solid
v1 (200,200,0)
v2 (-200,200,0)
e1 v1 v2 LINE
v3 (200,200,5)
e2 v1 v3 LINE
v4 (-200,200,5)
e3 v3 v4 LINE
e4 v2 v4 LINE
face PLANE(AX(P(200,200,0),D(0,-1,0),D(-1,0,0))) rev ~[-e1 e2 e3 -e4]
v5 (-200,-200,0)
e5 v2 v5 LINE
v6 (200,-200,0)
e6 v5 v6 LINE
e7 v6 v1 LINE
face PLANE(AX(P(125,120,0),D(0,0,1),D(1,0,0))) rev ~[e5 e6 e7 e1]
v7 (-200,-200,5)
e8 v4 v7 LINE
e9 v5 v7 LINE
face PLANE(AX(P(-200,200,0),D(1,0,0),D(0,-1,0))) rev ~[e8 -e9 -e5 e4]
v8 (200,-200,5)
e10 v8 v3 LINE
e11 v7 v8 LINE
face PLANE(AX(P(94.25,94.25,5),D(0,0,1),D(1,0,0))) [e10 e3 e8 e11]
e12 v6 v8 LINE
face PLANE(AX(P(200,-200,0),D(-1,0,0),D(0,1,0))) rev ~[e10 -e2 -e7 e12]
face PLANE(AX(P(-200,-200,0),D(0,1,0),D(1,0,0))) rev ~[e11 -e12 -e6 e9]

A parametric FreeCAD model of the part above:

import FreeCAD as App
import Part
import Sketcher
from FreeCAD import Vector
Q = App.Units.Quantity


def add_polygon(sketch, points):
    """Adds a closed chain of lines whose ends are joined by coincident constraints."""
    first, n = sketch.GeometryCount, len(points)
    for a, b in zip(points, points[1:] + points[:1]):
        sketch.addGeometry(Part.LineSegment(App.Vector(*a, 0), App.Vector(*b, 0)), False)
    for i in range(n):
        sketch.addConstraint(Sketcher.Constraint("Coincident", first + i, 2, first + (i + 1) % n, 1))

doc = App.newDocument("Part")
params = doc.addObject("Spreadsheet::Sheet", "Params")
for row, (alias, value) in enumerate([
    ("sketch1_width", "400 mm"),
    ("sketch1_width2", "130 mm"),
    ("sketch1_height", "120 mm"),
    ("pad1_length", "5 mm"),
    ("sketch2_width", "130 mm"),
    ("sketch2_height", "120 mm"),
    ("pad2_length", "5 mm"),
], start=1):
    params.set(f"A{row}", alias)
    params.set(f"B{row}", "=" + value)
    params.setAlias(f"B{row}", alias)

body = doc.addObject("PartDesign::Body", "Body")

sketch1 = doc.addObject("Sketcher::SketchObject", "Sketch")
body.addObject(sketch1)
sketch1.AttachmentSupport = (doc.XY_Plane, [""])
sketch1.MapMode = "FlatFace"
add_polygon(sketch1, [(200, 200), (-200, 200), (-200, -200), (200, -200)])
add_polygon(sketch1, [(60, 60), (60, 180), (190, 180), (190, 60)])
sketch1.addConstraint(Sketcher.Constraint("Horizontal", 0))
sketch1.addConstraint(Sketcher.Constraint("Vertical", 1))
sketch1.addConstraint(Sketcher.Constraint("Horizontal", 2))
sketch1.addConstraint(Sketcher.Constraint("Vertical", 3))
sketch1.addConstraint(Sketcher.Constraint("Vertical", 4))
sketch1.addConstraint(Sketcher.Constraint("Horizontal", 5))
sketch1.addConstraint(Sketcher.Constraint("Vertical", 6))
sketch1.addConstraint(Sketcher.Constraint("Horizontal", 7))
sketch1.addConstraint(Sketcher.Constraint("Symmetric", 0, 2, 2, 2, -1, 1))
sketch1.addConstraint(Sketcher.Constraint("Equal", 2, 1))
sketch1.addConstraint(Sketcher.Constraint("DistanceX", 0, 2, 0, 1, Q("400 mm")))
sketch1.addConstraint(Sketcher.Constraint("DistanceX", 5, 1, 5, 2, Q("130 mm")))
sketch1.addConstraint(Sketcher.Constraint("DistanceY", 4, 1, 4, 2, Q("120 mm")))
sketch1.addConstraint(Sketcher.Constraint("DistanceX", -1, 1, 4, 2, Q("60 mm")))
sketch1.addConstraint(Sketcher.Constraint("DistanceY", -1, 1, 4, 2, Q("180 mm")))
sketch1.setExpression("Constraints[18]", "Params.sketch1_width")
sketch1.setExpression("Constraints[19]", "Params.sketch1_width2")
sketch1.setExpression("Constraints[20]", "Params.sketch1_height")
pad1 = doc.addObject("PartDesign::Pad", "Pad")
body.addObject(pad1)
pad1.Profile = sketch1
pad1.setExpression("Length", "Params.pad1_length")

sketch2 = doc.addObject("Sketcher::SketchObject", "Sketch001")
body.addObject(sketch2)
sketch2.AttachmentSupport = (doc.XY_Plane, [""])
sketch2.MapMode = "FlatFace"
add_polygon(sketch2, [(60, 180), (60, 60), (190, 60), (190, 180)])
sketch2.addConstraint(Sketcher.Constraint("Vertical", 0))
sketch2.addConstraint(Sketcher.Constraint("Horizontal", 1))
sketch2.addConstraint(Sketcher.Constraint("Vertical", 2))
sketch2.addConstraint(Sketcher.Constraint("Horizontal", 3))
sketch2.addConstraint(Sketcher.Constraint("DistanceX", 1, 1, 1, 2, Q("130 mm")))
sketch2.addConstraint(Sketcher.Constraint("DistanceY", 0, 2, 0, 1, Q("120 mm")))
sketch2.addConstraint(Sketcher.Constraint("DistanceX", -1, 1, 0, 2, Q("60 mm")))
sketch2.addConstraint(Sketcher.Constraint("DistanceY", -1, 1, 0, 2, Q("60 mm")))
sketch2.setExpression("Constraints[8]", "Params.sketch2_width")
sketch2.setExpression("Constraints[9]", "Params.sketch2_height")
pad2 = doc.addObject("PartDesign::Pad", "Pad001")
body.addObject(pad2)
pad2.Profile = sketch2
pad2.setExpression("Length", "Params.pad2_length")

doc.recompute()
